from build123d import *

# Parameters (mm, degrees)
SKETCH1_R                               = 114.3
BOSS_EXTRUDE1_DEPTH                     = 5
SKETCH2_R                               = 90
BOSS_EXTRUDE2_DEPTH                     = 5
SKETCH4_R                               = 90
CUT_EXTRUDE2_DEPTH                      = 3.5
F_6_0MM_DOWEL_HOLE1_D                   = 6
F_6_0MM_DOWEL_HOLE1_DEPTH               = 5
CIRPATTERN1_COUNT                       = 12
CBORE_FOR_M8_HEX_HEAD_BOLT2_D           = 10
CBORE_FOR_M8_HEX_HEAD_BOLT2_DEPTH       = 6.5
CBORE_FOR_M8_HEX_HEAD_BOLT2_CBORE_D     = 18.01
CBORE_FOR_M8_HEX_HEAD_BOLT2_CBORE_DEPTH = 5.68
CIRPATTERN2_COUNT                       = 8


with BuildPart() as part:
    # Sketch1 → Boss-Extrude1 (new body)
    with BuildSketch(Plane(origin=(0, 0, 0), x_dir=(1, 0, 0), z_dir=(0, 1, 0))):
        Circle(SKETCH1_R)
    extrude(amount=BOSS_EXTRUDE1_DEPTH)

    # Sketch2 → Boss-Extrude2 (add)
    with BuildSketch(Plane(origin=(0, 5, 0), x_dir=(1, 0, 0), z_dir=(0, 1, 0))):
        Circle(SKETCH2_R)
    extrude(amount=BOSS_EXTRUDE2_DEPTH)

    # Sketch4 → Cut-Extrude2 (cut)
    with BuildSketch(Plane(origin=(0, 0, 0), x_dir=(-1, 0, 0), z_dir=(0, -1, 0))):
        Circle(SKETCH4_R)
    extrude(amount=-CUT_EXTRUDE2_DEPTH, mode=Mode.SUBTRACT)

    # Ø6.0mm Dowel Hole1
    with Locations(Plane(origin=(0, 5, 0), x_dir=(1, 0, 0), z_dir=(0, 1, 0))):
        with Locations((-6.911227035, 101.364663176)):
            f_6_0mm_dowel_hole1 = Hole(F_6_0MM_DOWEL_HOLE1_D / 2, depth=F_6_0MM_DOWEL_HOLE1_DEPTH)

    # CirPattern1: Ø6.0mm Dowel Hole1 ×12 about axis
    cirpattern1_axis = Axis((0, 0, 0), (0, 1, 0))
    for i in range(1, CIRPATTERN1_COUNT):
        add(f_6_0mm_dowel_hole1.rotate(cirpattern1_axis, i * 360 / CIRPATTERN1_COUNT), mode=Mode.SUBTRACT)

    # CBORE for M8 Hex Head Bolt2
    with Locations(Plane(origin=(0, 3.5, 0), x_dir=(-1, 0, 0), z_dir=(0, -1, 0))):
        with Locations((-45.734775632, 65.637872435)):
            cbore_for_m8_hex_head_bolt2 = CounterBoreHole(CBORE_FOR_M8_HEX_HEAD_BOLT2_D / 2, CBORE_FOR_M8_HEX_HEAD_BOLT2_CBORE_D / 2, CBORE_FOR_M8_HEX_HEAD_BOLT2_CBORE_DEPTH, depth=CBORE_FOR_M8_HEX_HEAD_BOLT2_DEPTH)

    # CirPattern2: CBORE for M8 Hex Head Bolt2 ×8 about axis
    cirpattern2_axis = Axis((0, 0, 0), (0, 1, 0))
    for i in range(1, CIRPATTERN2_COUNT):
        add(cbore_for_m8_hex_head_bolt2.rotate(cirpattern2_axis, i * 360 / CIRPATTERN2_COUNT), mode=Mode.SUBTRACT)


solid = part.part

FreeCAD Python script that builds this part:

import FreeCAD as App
import Part
import Sketcher
from FreeCAD import Vector
Q = App.Units.Quantity

doc = App.newDocument("Part")
params = doc.addObject("Spreadsheet::Sheet", "Params")
for row, (alias, value) in enumerate([
    ("sketch1_diameter", "228.6 mm"),
    ("pad1_length", "5 mm"),
    ("sketch2_diameter", "180 mm"),
    ("pad2_length", "5 mm"),
    ("sketch3_diameter", "180 mm"),
    ("pocket1_length", "3.5 mm"),
    ("sketch4_diameter", "6 mm"),
    ("hole_diameter", "6 mm"),
    ("hole_depth", "5 mm"),
    ("sketch5_diameter", "10 mm"),
    ("hole2_diameter", "10 mm"),
    ("hole2_depth", "6.5 mm"),
    ("hole2_cbore_diameter", "18.01 mm"),
    ("hole2_cbore_depth", "5.68 mm"),
], start=1):
    params.set(f"A{row}", alias)
    params.set(f"B{row}", "=" + value)
    params.setAlias(f"B{row}", alias)

body = doc.addObject("PartDesign::Body", "Body")

# Sketch on XZ plane
sketch1 = doc.addObject("Sketcher::SketchObject", "Sketch")
body.addObject(sketch1)
sketch1.AttachmentSupport = (doc.XZ_Plane, [""])
sketch1.MapMode = "FlatFace"
sketch1.addGeometry(Part.Circle(Vector(0, 0, 0), Vector(0, 0, 1), 114), False)
sketch1.addConstraint([
    Sketcher.Constraint("Coincident", 0, 3, -1, 1),
    Sketcher.Constraint("Diameter", 0, Q("228.6 mm")),
])
sketch1.setExpression("Constraints[1]", "Params.sketch1_diameter")
pad1 = doc.addObject("PartDesign::Pad", "Pad")
body.addObject(pad1)
pad1.Profile = sketch1
pad1.setExpression("Length", "Params.pad1_length")
pad1.Reversed = True

# Sketch on XZ plane
sketch2 = doc.addObject("Sketcher::SketchObject", "Sketch001")
body.addObject(sketch2)
sketch2.AttachmentSupport = (doc.XZ_Plane, [""])
sketch2.MapMode = "FlatFace"
sketch2.AttachmentOffset = App.Placement(Vector(0, 0, -5), App.Rotation())
sketch2.addGeometry(Part.Circle(Vector(0, 0, 0), Vector(0, 0, 1), 90), False)
sketch2.addConstraint([
    Sketcher.Constraint("Coincident", 0, 3, -1, 1),
    Sketcher.Constraint("Diameter", 0, Q("180 mm")),
])
sketch2.setExpression("Constraints[1]", "Params.sketch2_diameter")
pad2 = doc.addObject("PartDesign::Pad", "Pad001")
body.addObject(pad2)
pad2.Profile = sketch2
pad2.setExpression("Length", "Params.pad2_length")
pad2.Reversed = True

# Sketch on XZ plane
sketch3 = doc.addObject("Sketcher::SketchObject", "Sketch002")
body.addObject(sketch3)
sketch3.AttachmentSupport = (doc.XZ_Plane, [""])
sketch3.MapMode = "FlatFace"
sketch3.addGeometry(Part.Circle(Vector(0, 0, 0), Vector(0, 0, 1), 90), False)
sketch3.addConstraint([
    Sketcher.Constraint("Coincident", 0, 3, -1, 1),
    Sketcher.Constraint("Diameter", 0, Q("180 mm")),
])
sketch3.setExpression("Constraints[1]", "Params.sketch3_diameter")
pocket1 = doc.addObject("PartDesign::Pocket", "Pocket")
body.addObject(pocket1)
pocket1.Profile = sketch3
pocket1.setExpression("Length", "Params.pocket1_length")

# Sketch on XZ plane
sketch4 = doc.addObject("Sketcher::SketchObject", "Sketch003")
body.addObject(sketch4)
sketch4.AttachmentSupport = (doc.XZ_Plane, [""])
sketch4.MapMode = "FlatFace"
sketch4.AttachmentOffset = App.Placement(Vector(0, 0, -5), App.Rotation())
sketch4.addGeometry(Part.Circle(Vector(-6.9, -101.4, 0), Vector(0, 0, 1), 3), False)
sketch4.addConstraint([
    Sketcher.Constraint("Diameter", 0, Q("6 mm")),
    Sketcher.Constraint("DistanceX", 0, 3, -1, 1, Q("6.911227 mm")),
    Sketcher.Constraint("DistanceY", 0, 3, -1, 1, Q("101.364663 mm")),
])
sketch4.setExpression("Constraints[0]", "Params.sketch4_diameter")
doc.recompute()
hole = doc.addObject("PartDesign::Hole", "Hole")
body.addObject(hole)
hole.Profile = sketch4
hole.ThreadType = "None"
hole.setExpression("Diameter", "Params.hole_diameter")
hole.DepthType = "Dimension"
hole.setExpression("Depth", "Params.hole_depth")
hole.DrillPoint = "Flat"
hole.Reversed = True
doc.recompute()

polarpattern = doc.addObject("PartDesign::PolarPattern", "PolarPattern")
body.addObject(polarpattern)
polarpattern.Originals = [hole]
polarpattern.Axis = (doc.Y_Axis, [""])
polarpattern.Angle = 360
polarpattern.Occurrences = 12
body.Tip = polarpattern

# Sketch on XZ plane
sketch5 = doc.addObject("Sketcher::SketchObject", "Sketch004")
body.addObject(sketch5)
sketch5.AttachmentSupport = (doc.XZ_Plane, [""])
sketch5.MapMode = "FlatFace"
sketch5.AttachmentOffset = App.Placement(Vector(0, 0, -3.5), App.Rotation())
sketch5.addGeometry(Part.Circle(Vector(46, -66, 0), Vector(0, 0, 1), 5), False)
sketch5.addConstraint([
    Sketcher.Constraint("Diameter", 0, Q("10 mm")),
    Sketcher.Constraint("DistanceX", -1, 1, 0, 3, Q("45.734776 mm")),
    Sketcher.Constraint("DistanceY", 0, 3, -1, 1, Q("65.637872 mm")),
])
sketch5.setExpression("Constraints[0]", "Params.sketch5_diameter")
doc.recompute()
hole2 = doc.addObject("PartDesign::Hole", "Hole001")
body.addObject(hole2)
hole2.Profile = sketch5
hole2.ThreadType = "None"
hole2.setExpression("Diameter", "Params.hole2_diameter")
hole2.DepthType = "Dimension"
hole2.setExpression("Depth", "Params.hole2_depth")
hole2.DrillPoint = "Flat"
hole2.HoleCutType = "Counterbore"
hole2.setExpression("HoleCutDiameter", "Params.hole2_cbore_diameter")
hole2.setExpression("HoleCutDepth", "Params.hole2_cbore_depth")
doc.recompute()

polarpattern2 = doc.addObject("PartDesign::PolarPattern", "PolarPattern001")
body.addObject(polarpattern2)
polarpattern2.Originals = [hole2]
polarpattern2.Axis = (doc.Y_Axis, [""])
polarpattern2.Angle = 360
polarpattern2.Occurrences = 8
body.Tip = polarpattern2

doc.recompute()
